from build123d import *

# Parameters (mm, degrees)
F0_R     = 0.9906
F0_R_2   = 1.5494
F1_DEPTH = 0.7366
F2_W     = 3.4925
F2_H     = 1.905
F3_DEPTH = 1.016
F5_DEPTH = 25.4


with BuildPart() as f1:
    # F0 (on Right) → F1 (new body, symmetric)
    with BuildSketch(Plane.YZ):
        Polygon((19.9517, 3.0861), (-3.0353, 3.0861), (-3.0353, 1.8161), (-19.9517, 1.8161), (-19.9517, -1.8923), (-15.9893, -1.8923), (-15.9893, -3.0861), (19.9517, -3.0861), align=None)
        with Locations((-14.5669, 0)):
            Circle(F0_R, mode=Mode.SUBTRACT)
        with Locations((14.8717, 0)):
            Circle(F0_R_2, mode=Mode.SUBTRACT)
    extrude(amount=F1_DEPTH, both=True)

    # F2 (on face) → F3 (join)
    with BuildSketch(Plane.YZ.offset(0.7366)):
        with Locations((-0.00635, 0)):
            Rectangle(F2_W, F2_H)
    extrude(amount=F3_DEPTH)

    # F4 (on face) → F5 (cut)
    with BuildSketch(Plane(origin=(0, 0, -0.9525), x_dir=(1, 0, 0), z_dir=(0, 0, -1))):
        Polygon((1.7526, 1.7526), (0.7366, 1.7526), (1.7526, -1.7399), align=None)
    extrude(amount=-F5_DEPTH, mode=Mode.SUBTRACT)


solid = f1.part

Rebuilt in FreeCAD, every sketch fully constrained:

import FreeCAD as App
import Part
import Sketcher
from FreeCAD import Vector
Q = App.Units.Quantity


def add_polygon(sketch, points):
    """Adds a closed chain of lines whose ends are joined by coincident constraints."""
    first, n = sketch.GeometryCount, len(points)
    for a, b in zip(points, points[1:] + points[:1]):
        sketch.addGeometry(Part.LineSegment(App.Vector(*a, 0), App.Vector(*b, 0)), False)
    for i in range(n):
        sketch.addConstraint(Sketcher.Constraint("Coincident", first + i, 2, first + (i + 1) % n, 1))

doc = App.newDocument("Part")
body = doc.addObject("PartDesign::Body", "Body")

sketch1 = doc.addObject("Sketcher::SketchObject", "Sketch")
body.addObject(sketch1)
sketch1.AttachmentSupport = (doc.YZ_Plane, [""])
sketch1.MapMode = "FlatFace"
add_polygon(sketch1, [(20, 3.1), (-3, 3.1), (-3, 1.8), (-20, 1.8), (-20, -1.9), (-16, -1.9), (-16, -3.1), (20, -3.1)])
sketch1.addGeometry(Part.Circle(Vector(-14.6, 0, 0), Vector(0, 0, 1), 1), False)
sketch1.addGeometry(Part.Circle(Vector(14.9, 0, 0), Vector(0, 0, 1), 1.5), False)
sketch1.addConstraint([
    Sketcher.Constraint("Horizontal", 0),
    Sketcher.Constraint("Vertical", 1),
    Sketcher.Constraint("Horizontal", 2),
    Sketcher.Constraint("Vertical", 3),
    Sketcher.Constraint("Horizontal", 4),
    Sketcher.Constraint("Vertical", 5),
    Sketcher.Constraint("Horizontal", 6),
    Sketcher.Constraint("Vertical", 7),
    Sketcher.Constraint("PointOnObject", 8, 3, -1),
    Sketcher.Constraint("PointOnObject", 9, 3, -1),
    Sketcher.Constraint("Diameter", 8, Q("0.078 in")),
    Sketcher.Constraint("Diameter", 9, Q("0.122 in")),
    Sketcher.Constraint("DistanceY", 1, 2, 1, 1, Q("0.05 in")),
    Sketcher.Constraint("DistanceX", 9, 3, 6, 2, Q("0.2 in")),
    Sketcher.Constraint("DistanceX", 0, 2, 0, 1, Q("0.905 in")),
    Sketcher.Constraint("DistanceX", 2, 2, 2, 1, Q("0.666 in")),
    Sketcher.Constraint("DistanceX", 4, 1, 4, 2, Q("0.156 in")),
    Sketcher.Constraint("DistanceY", 3, 2, 3, 1, Q("0.146 in")),
    Sketcher.Constraint("DistanceY", 5, 2, 5, 1, Q("0.047 in")),
    Sketcher.Constraint("DistanceX", 8, 3, 9, 3, Q("1.159 in")),
    Sketcher.Constraint("DistanceX", 8, 3, -1, 1, Q("0.5735 in")),
    Sketcher.Constraint("DistanceY", -1, 1, 0, 2, Q("0.1215 in")),
])
pad1 = doc.addObject("PartDesign::Pad", "Pad")
body.addObject(pad1)
pad1.Profile = sketch1
pad1.Length = Q("0.058 in")
pad1.Midplane = True

sketch2 = doc.addObject("Sketcher::SketchObject", "Sketch001")
body.addObject(sketch2)
sketch2.AttachmentSupport = (doc.YZ_Plane, [""])
sketch2.MapMode = "FlatFace"
sketch2.AttachmentOffset = App.Placement(Vector(0, 0, 0.029 * 25.4), App.Rotation())
add_polygon(sketch2, [(-1.8, 1), (-1.8, -1), (1.7, -1), (1.7, 1)])
sketch2.addConstraint([
    Sketcher.Constraint("Vertical", 0),
    Sketcher.Constraint("Horizontal", 1),
    Sketcher.Constraint("Vertical", 2),
    Sketcher.Constraint("Horizontal", 3),
    Sketcher.Constraint("DistanceY", 0, 2, 0, 1, Q("0.075 in")),
    Sketcher.Constraint("DistanceX", 1, 1, 1, 2, Q("0.1375 in")),
    Sketcher.Constraint("DistanceX", 0, 2, -1, 1, Q("0.069 in")),
    Sketcher.Constraint("DistanceY", 0, 2, -1, 1, Q("0.0375 in")),
])
pad2 = doc.addObject("PartDesign::Pad", "Pad001")
body.addObject(pad2)
pad2.Profile = sketch2
pad2.Length = Q("0.04 in")

sketch3 = doc.addObject("Sketcher::SketchObject", "Sketch002")
body.addObject(sketch3)
sketch3.AttachmentSupport = (doc.XY_Plane, [""])
sketch3.MapMode = "FlatFace"
sketch3.AttachmentOffset = App.Placement(Vector(0, 0, -0.0375 * 25.4), App.Rotation())
add_polygon(sketch3, [(1.8, -1.8), (0.7, -1.8), (1.8, 1.7)])
sketch3.addConstraint([
    Sketcher.Constraint("Horizontal", 0),
    Sketcher.Constraint("Vertical", 2),
    Sketcher.Constraint("DistanceX", 0, 2, 0, 1, Q("0.04 in")),
    Sketcher.Constraint("DistanceY", 2, 2, 2, 1, Q("0.1375 in")),
    Sketcher.Constraint("DistanceX", -1, 1, 0, 2, Q("0.029 in")),
    Sketcher.Constraint("DistanceY", 0, 2, -1, 1, Q("0.069 in")),
])
pocket1 = doc.addObject("PartDesign::Pocket", "Pocket")
body.addObject(pocket1)
pocket1.Profile = sketch3
pocket1.Length = Q("1 in")
pocket1.Reversed = True

doc.recompute()
